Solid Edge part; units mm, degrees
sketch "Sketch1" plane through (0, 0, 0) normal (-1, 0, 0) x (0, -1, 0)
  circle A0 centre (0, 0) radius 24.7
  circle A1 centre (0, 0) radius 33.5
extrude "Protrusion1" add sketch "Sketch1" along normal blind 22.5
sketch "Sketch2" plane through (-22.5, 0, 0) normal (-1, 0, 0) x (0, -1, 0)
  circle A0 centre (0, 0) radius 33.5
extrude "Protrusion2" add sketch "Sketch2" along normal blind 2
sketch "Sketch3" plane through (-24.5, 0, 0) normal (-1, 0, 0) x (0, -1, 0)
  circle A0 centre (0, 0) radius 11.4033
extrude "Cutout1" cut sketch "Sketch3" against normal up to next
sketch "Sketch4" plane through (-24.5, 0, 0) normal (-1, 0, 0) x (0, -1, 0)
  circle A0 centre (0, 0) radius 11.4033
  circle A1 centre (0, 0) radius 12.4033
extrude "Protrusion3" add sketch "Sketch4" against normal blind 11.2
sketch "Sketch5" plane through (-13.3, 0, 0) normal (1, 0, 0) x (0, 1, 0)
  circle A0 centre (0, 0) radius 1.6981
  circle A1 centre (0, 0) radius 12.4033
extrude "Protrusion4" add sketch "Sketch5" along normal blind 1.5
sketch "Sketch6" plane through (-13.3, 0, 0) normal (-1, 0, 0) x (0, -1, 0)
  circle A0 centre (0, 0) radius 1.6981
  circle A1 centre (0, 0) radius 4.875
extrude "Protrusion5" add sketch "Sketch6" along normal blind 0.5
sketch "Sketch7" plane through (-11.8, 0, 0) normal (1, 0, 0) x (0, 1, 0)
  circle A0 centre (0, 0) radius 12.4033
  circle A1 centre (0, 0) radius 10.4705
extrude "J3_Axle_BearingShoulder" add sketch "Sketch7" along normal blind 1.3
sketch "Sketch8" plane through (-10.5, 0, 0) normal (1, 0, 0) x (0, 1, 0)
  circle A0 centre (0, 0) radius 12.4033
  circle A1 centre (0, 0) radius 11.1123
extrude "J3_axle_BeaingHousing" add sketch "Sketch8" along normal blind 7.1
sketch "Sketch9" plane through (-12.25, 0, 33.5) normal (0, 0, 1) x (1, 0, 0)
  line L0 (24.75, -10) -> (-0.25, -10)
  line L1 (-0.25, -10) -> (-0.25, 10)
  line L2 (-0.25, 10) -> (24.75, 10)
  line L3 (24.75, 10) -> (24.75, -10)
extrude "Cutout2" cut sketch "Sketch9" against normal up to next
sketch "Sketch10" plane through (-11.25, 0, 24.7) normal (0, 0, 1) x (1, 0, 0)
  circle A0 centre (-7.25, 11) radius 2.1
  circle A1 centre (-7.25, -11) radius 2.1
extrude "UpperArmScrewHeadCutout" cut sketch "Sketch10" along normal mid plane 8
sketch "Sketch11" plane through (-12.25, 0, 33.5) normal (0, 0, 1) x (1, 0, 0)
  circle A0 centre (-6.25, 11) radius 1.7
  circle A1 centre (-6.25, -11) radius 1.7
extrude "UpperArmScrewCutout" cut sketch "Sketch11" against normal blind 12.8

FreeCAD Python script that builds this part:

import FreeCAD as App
import Part
import Sketcher
Q = App.Units.Quantity

doc = App.newDocument("Part")
body = doc.addObject("PartDesign::Body", "Body")

# Sketch on YZ plane
sketch1 = body.newObject("Sketcher::SketchObject", "Sketch")
sketch1.AttachmentSupport = (doc.getObject("YZ_Plane"), [""])
sketch1.MapMode = "FlatFace"
sketch1.addGeometry([
    Part.Circle(App.Vector(0, 0, 0), App.Vector(0, 0, 1), 34),
    Part.Circle(App.Vector(0, 0, 0), App.Vector(0, 0, 1), 25),
], False)
sketch1.addConstraint([
    Sketcher.Constraint("Coincident", 0, 3, -1, 1),
    Sketcher.Constraint("Coincident", 1, 3, -1, 1),
    Sketcher.Constraint("Diameter", 0, Q("67 mm")),
    Sketcher.Constraint("Diameter", 1, Q("49.4 mm")),
])
pad1 = body.newObject("PartDesign::Pad", "Pad")
pad1.Profile = sketch1
pad1.Length = 22.5
pad1.Reversed = True

# Sketch on YZ plane
sketch2 = body.newObject("Sketcher::SketchObject", "Sketch001")
sketch2.AttachmentSupport = (doc.getObject("YZ_Plane"), [""])
sketch2.MapMode = "FlatFace"
sketch2.AttachmentOffset = App.Placement(App.Vector(0, 0, -22.5), App.Rotation())
sketch2.addGeometry(Part.Circle(App.Vector(0, 0, 0), App.Vector(0, 0, 1), 34), False)
sketch2.addConstraint([
    Sketcher.Constraint("Coincident", 0, 3, -1, 1),
    Sketcher.Constraint("Diameter", 0, Q("67 mm")),
])
pad2 = body.newObject("PartDesign::Pad", "Pad001")
pad2.Profile = sketch2
pad2.Length = 2
pad2.Reversed = True

# Sketch on YZ plane
sketch3 = body.newObject("Sketcher::SketchObject", "Sketch002")
sketch3.AttachmentSupport = (doc.getObject("YZ_Plane"), [""])
sketch3.MapMode = "FlatFace"
sketch3.AttachmentOffset = App.Placement(App.Vector(0, 0, -24.5), App.Rotation())
sketch3.addGeometry(Part.Circle(App.Vector(0, 0, 0), App.Vector(0, 0, 1), 11), False)
sketch3.addConstraint([
    Sketcher.Constraint("Coincident", 0, 3, -1, 1),
    Sketcher.Constraint("Diameter", 0, Q("22.8066 mm")),
])
pocket1 = body.newObject("PartDesign::Pocket", "Pocket")
pocket1.Profile = sketch3
pocket1.Type = "UpToFirst"
pocket1.Reversed = True

# Sketch on YZ plane
sketch4 = body.newObject("Sketcher::SketchObject", "Sketch003")
sketch4.AttachmentSupport = (doc.getObject("YZ_Plane"), [""])
sketch4.MapMode = "FlatFace"
sketch4.AttachmentOffset = App.Placement(App.Vector(0, 0, -24.5), App.Rotation())
sketch4.addGeometry([
    Part.Circle(App.Vector(0, 0, 0), App.Vector(0, 0, 1), 12),
    Part.Circle(App.Vector(0, 0, 0), App.Vector(0, 0, 1), 11),
], False)
sketch4.addConstraint([
    Sketcher.Constraint("Coincident", 0, 3, -1, 1),
    Sketcher.Constraint("Coincident", 1, 3, -1, 1),
    Sketcher.Constraint("Diameter", 0, Q("24.8066 mm")),
    Sketcher.Constraint("Diameter", 1, Q("22.8066 mm")),
])
pad3 = body.newObject("PartDesign::Pad", "Pad002")
pad3.Profile = sketch4
pad3.Length = 11.2

# Sketch on YZ plane
sketch5 = body.newObject("Sketcher::SketchObject", "Sketch004")
sketch5.AttachmentSupport = (doc.getObject("YZ_Plane"), [""])
sketch5.MapMode = "FlatFace"
sketch5.AttachmentOffset = App.Placement(App.Vector(0, 0, -13.3), App.Rotation())
sketch5.addGeometry([
    Part.Circle(App.Vector(0, 0, 0), App.Vector(0, 0, 1), 12.4),
    Part.Circle(App.Vector(0, 0, 0), App.Vector(0, 0, 1), 1.7),
], False)
sketch5.addConstraint([
    Sketcher.Constraint("Coincident", 0, 3, -1, 1),
    Sketcher.Constraint("Coincident", 1, 3, -1, 1),
    Sketcher.Constraint("Diameter", 0, Q("24.8066 mm")),
    Sketcher.Constraint("Diameter", 1, Q("3.3962 mm")),
])
pad4 = body.newObject("PartDesign::Pad", "Pad003")
pad4.Profile = sketch5
pad4.Length = 1.5

# Sketch on YZ plane
sketch6 = body.newObject("Sketcher::SketchObject", "Sketch005")
sketch6.AttachmentSupport = (doc.getObject("YZ_Plane"), [""])
sketch6.MapMode = "FlatFace"
sketch6.AttachmentOffset = App.Placement(App.Vector(0, 0, -13.3), App.Rotation())
sketch6.addGeometry([
    Part.Circle(App.Vector(0, 0, 0), App.Vector(0, 0, 1), 4.9),
    Part.Circle(App.Vector(0, 0, 0), App.Vector(0, 0, 1), 1.7),
], False)
sketch6.addConstraint([
    Sketcher.Constraint("Coincident", 0, 3, -1, 1),
    Sketcher.Constraint("Coincident", 1, 3, -1, 1),
    Sketcher.Constraint("Diameter", 0, Q("9.75 mm")),
    Sketcher.Constraint("Diameter", 1, Q("3.3962 mm")),
])
pad5 = body.newObject("PartDesign::Pad", "Pad004")
pad5.Profile = sketch6
pad5.Length = 0.5
pad5.Reversed = True

# Sketch on YZ plane
sketch7 = body.newObject("Sketcher::SketchObject", "Sketch006")
sketch7.AttachmentSupport = (doc.getObject("YZ_Plane"), [""])
sketch7.MapMode = "FlatFace"
sketch7.AttachmentOffset = App.Placement(App.Vector(0, 0, -11.8), App.Rotation())
sketch7.addGeometry([
    Part.Circle(App.Vector(0, 0, 0), App.Vector(0, 0, 1), 12),
    Part.Circle(App.Vector(0, 0, 0), App.Vector(0, 0, 1), 10),
], False)
sketch7.addConstraint([
    Sketcher.Constraint("Coincident", 0, 3, -1, 1),
    Sketcher.Constraint("Coincident", 1, 3, -1, 1),
    Sketcher.Constraint("Diameter", 1, Q("20.941 mm")),
    Sketcher.Constraint("Diameter", 0, Q("24.8066 mm")),
])
pad6 = body.newObject("PartDesign::Pad", "Pad005")
pad6.Profile = sketch7
pad6.Length = 1.3

# Sketch on YZ plane
sketch8 = body.newObject("Sketcher::SketchObject", "Sketch007")
sketch8.AttachmentSupport = (doc.getObject("YZ_Plane"), [""])
sketch8.MapMode = "FlatFace"
sketch8.AttachmentOffset = App.Placement(App.Vector(0, 0, -10.5), App.Rotation())
sketch8.addGeometry([
    Part.Circle(App.Vector(0, 0, 0), App.Vector(0, 0, 1), 12),
    Part.Circle(App.Vector(0, 0, 0), App.Vector(0, 0, 1), 11),
], False)
sketch8.addConstraint([
    Sketcher.Constraint("Coincident", 0, 3, -1, 1),
    Sketcher.Constraint("Coincident", 1, 3, -1, 1),
    Sketcher.Constraint("Diameter", 0, Q("24.8066 mm")),
    Sketcher.Constraint("Diameter", 1, Q("22.2246 mm")),
])
pad7 = body.newObject("PartDesign::Pad", "Pad006")
pad7.Profile = sketch8
pad7.Length = 7.1

# Sketch on XY plane
sketch9 = body.newObject("Sketcher::SketchObject", "Sketch008")
sketch9.AttachmentSupport = (doc.getObject("XY_Plane"), [""])
sketch9.MapMode = "FlatFace"
sketch9.AttachmentOffset = App.Placement(App.Vector(0, 0, 33.5), App.Rotation())
sketch9.addGeometry([
    Part.LineSegment(App.Vector(-12, -10, 0), App.Vector(12, -10, 0)),
    Part.LineSegment(App.Vector(12, -10, 0), App.Vector(12, 10, 0)),
    Part.LineSegment(App.Vector(12, 10, 0), App.Vector(-12, 10, 0)),
    Part.LineSegment(App.Vector(-12, 10, 0), App.Vector(-12, -10, 0)),
], False)
sketch9.addConstraint([
    Sketcher.Constraint("Coincident", 0, 2, 1, 1),
    Sketcher.Constraint("Coincident", 1, 2, 2, 1),
    Sketcher.Constraint("Coincident", 2, 2, 3, 1),
    Sketcher.Constraint("Coincident", 3, 2, 0, 1),
    Sketcher.Constraint("Horizontal", 0),
    Sketcher.Constraint("Vertical", 1),
    Sketcher.Constraint("Horizontal", 2),
    Sketcher.Constraint("Vertical", 3),
    Sketcher.Constraint("Symmetric", 0, 2, 2, 2, -1, 1),
    Sketcher.Constraint("DistanceX", 0, 1, 0, 2, Q("25 mm")),
    Sketcher.Constraint("DistanceY", 1, 1, 1, 2, Q("20 mm")),
])
pocket2 = body.newObject("PartDesign::Pocket", "Pocket001")
pocket2.Profile = sketch9
pocket2.Length = 10.9148

# Sketch on XY plane
sketch10 = body.newObject("Sketcher::SketchObject", "Sketch009")
sketch10.AttachmentSupport = (doc.getObject("XY_Plane"), [""])
sketch10.MapMode = "FlatFace"
sketch10.AttachmentOffset = App.Placement(App.Vector(0, 0, 24.7), App.Rotation())
sketch10.addGeometry([
    Part.Circle(App.Vector(-18.5, 11, 0), App.Vector(0, 0, 1), 2.1),
    Part.Circle(App.Vector(-18.5, -11, 0), App.Vector(0, 0, 1), 2.1),
], False)
sketch10.addConstraint([
    Sketcher.Constraint("Equal", 0, 1),
    Sketcher.Constraint("Symmetric", 0, 3, 1, 3, -1),
    Sketcher.Constraint("Diameter", 0, Q("4.2 mm")),
    Sketcher.Constraint("DistanceY", -1, 1, 0, 3, Q("11 mm")),
    Sketcher.Constraint("DistanceX", 0, 3, -1, 1, Q("18.5 mm")),
])
pocket3 = body.newObject("PartDesign::Pocket", "Pocket002")
pocket3.Profile = sketch10
pocket3.Length = 8
pocket3.Midplane = True

# Sketch on XY plane
sketch11 = body.newObject("Sketcher::SketchObject", "Sketch010")
sketch11.AttachmentSupport = (doc.getObject("XY_Plane"), [""])
sketch11.MapMode = "FlatFace"
sketch11.AttachmentOffset = App.Placement(App.Vector(0, 0, 33.5), App.Rotation())
sketch11.addGeometry([
    Part.Circle(App.Vector(-18.5, 11, 0), App.Vector(0, 0, 1), 1.7),
    Part.Circle(App.Vector(-18.5, -11, 0), App.Vector(0, 0, 1), 1.7),
], False)
sketch11.addConstraint([
    Sketcher.Constraint("Equal", 0, 1),
    Sketcher.Constraint("Symmetric", 0, 3, 1, 3, -1),
    Sketcher.Constraint("Diameter", 0, Q("3.4 mm")),
    Sketcher.Constraint("DistanceY", -1, 1, 0, 3, Q("11 mm")),
    Sketcher.Constraint("DistanceX", 0, 3, -1, 1, Q("18.5 mm")),
])
pocket4 = body.newObject("PartDesign::Pocket", "Pocket003")
pocket4.Profile = sketch11
pocket4.Length = 12.8

doc.recompute()
